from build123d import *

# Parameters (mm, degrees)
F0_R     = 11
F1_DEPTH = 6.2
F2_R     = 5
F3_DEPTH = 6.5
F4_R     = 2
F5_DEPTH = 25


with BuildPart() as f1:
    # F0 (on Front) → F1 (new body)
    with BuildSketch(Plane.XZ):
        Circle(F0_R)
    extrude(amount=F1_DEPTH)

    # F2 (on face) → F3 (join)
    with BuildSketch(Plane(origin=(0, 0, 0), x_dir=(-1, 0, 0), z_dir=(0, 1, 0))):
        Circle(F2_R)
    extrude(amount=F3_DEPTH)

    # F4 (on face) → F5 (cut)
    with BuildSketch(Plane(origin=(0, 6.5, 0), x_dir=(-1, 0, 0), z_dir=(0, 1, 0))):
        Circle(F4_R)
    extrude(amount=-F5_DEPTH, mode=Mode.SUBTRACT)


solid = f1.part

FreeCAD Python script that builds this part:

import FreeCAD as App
import Part
import Sketcher
Q = App.Units.Quantity

doc = App.newDocument("Part")
params = doc.addObject("Spreadsheet::Sheet", "Params")
for row, (alias, value) in enumerate([
    ("sketch1_diameter", "22 mm"),
    ("pad1_length", "6.2 mm"),
    ("sketch2_diameter", "10 mm"),
    ("pad2_length", "6.5 mm"),
    ("sketch3_diameter", "4 mm"),
    ("pocket1_length", "25 mm"),
], start=1):
    params.set(f"A{row}", alias)
    params.set(f"B{row}", "=" + value)
    params.setAlias(f"B{row}", alias)

body = doc.addObject("PartDesign::Body", "Body")

# Sketch on XZ plane
sketch1 = doc.addObject("Sketcher::SketchObject", "Sketch")
body.addObject(sketch1)
sketch1.AttachmentSupport = (doc.XZ_Plane, [""])
sketch1.MapMode = "FlatFace"
sketch1.addGeometry(Part.Circle(App.Vector(0, 0, 0), App.Vector(0, 0, 1), 11), False)
sketch1.addConstraint(Sketcher.Constraint("Coincident", 0, 3, -1, 1))
sketch1.addConstraint(Sketcher.Constraint("Diameter", 0, Q("22 mm")))
sketch1.setExpression("Constraints[1]", "Params.sketch1_diameter")
pad1 = doc.addObject("PartDesign::Pad", "Pad")
body.addObject(pad1)
pad1.Profile = sketch1
pad1.setExpression("Length", "Params.pad1_length")

# Sketch on XZ plane
sketch2 = doc.addObject("Sketcher::SketchObject", "Sketch001")
body.addObject(sketch2)
sketch2.AttachmentSupport = (doc.XZ_Plane, [""])
sketch2.MapMode = "FlatFace"
sketch2.addGeometry(Part.Circle(App.Vector(0, 0, 0), App.Vector(0, 0, 1), 5), False)
sketch2.addConstraint(Sketcher.Constraint("Coincident", 0, 3, -1, 1))
sketch2.addConstraint(Sketcher.Constraint("Diameter", 0, Q("10 mm")))
sketch2.setExpression("Constraints[1]", "Params.sketch2_diameter")
pad2 = doc.addObject("PartDesign::Pad", "Pad001")
body.addObject(pad2)
pad2.Profile = sketch2
pad2.setExpression("Length", "Params.pad2_length")
pad2.Reversed = True

# Sketch on XZ plane
sketch3 = doc.addObject("Sketcher::SketchObject", "Sketch002")
body.addObject(sketch3)
sketch3.AttachmentSupport = (doc.XZ_Plane, [""])
sketch3.MapMode = "FlatFace"
sketch3.AttachmentOffset = App.Placement(App.Vector(0, 0, -6.5), App.Rotation())
sketch3.addGeometry(Part.Circle(App.Vector(0, 0, 0), App.Vector(0, 0, 1), 2), False)
sketch3.addConstraint(Sketcher.Constraint("Coincident", 0, 3, -1, 1))
sketch3.addConstraint(Sketcher.Constraint("Diameter", 0, Q("4 mm")))
sketch3.setExpression("Constraints[1]", "Params.sketch3_diameter")
pocket1 = doc.addObject("PartDesign::Pocket", "Pocket")
body.addObject(pocket1)
pocket1.Profile = sketch3
pocket1.setExpression("Length", "Params.pocket1_length")
pocket1.Reversed = True

doc.recompute()
